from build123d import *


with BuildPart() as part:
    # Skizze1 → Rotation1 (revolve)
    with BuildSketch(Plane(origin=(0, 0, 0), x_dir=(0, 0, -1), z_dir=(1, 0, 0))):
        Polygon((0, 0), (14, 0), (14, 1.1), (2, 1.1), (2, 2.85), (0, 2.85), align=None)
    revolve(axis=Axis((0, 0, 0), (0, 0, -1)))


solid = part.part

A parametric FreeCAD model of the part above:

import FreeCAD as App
import Part
import Sketcher
Q = App.Units.Quantity

doc = App.newDocument("Part")
body = doc.addObject("PartDesign::Body", "Body")

sketch1 = body.newObject("Sketcher::SketchObject", "Sketch")
sketch1.AttachmentSupport = (doc.getObject("YZ_Plane"), [""])
sketch1.MapMode = "FlatFace"
sketch1.addGeometry(Part.LineSegment(App.Vector(0, 0, 0), App.Vector(0, -14, 0)), False)
sketch1.addGeometry(Part.LineSegment(App.Vector(0, -14, 0), App.Vector(1.1, -14, 0)), False)
sketch1.addGeometry(Part.LineSegment(App.Vector(1.1, -14, 0), App.Vector(1.1, -2, 0)), False)
sketch1.addGeometry(Part.LineSegment(App.Vector(1.1, -2, 0), App.Vector(2.85, -2, 0)), False)
sketch1.addGeometry(Part.LineSegment(App.Vector(2.85, -2, 0), App.Vector(2.85, 0, 0)), False)
sketch1.addGeometry(Part.LineSegment(App.Vector(2.85, 0, 0), App.Vector(0, 0, 0)), False)
sketch1.addConstraint(Sketcher.Constraint("Coincident", 0, 2, 1, 1))
sketch1.addConstraint(Sketcher.Constraint("Coincident", 1, 2, 2, 1))
sketch1.addConstraint(Sketcher.Constraint("Coincident", 2, 2, 3, 1))
sketch1.addConstraint(Sketcher.Constraint("Coincident", 3, 2, 4, 1))
sketch1.addConstraint(Sketcher.Constraint("Coincident", 4, 2, 5, 1))
sketch1.addConstraint(Sketcher.Constraint("Coincident", 5, 2, 0, 1))
sketch1.addConstraint(Sketcher.Constraint("Vertical", 0))
sketch1.addConstraint(Sketcher.Constraint("Horizontal", 1))
sketch1.addConstraint(Sketcher.Constraint("Vertical", 2))
sketch1.addConstraint(Sketcher.Constraint("Horizontal", 3))
sketch1.addConstraint(Sketcher.Constraint("Vertical", 4))
sketch1.addConstraint(Sketcher.Constraint("Horizontal", 5))
sketch1.addConstraint(Sketcher.Constraint("Coincident", 5, 2, -1, 1))
sketch1.addConstraint(Sketcher.Constraint("DistanceY", 0, 2, 0, 1, Q("14 mm")))
sketch1.addConstraint(Sketcher.Constraint("DistanceY", 2, 1, 2, 2, Q("12 mm")))
sketch1.addConstraint(Sketcher.Constraint("DistanceX", 1, 1, 1, 2, Q("1.1 mm")))
sketch1.addConstraint(Sketcher.Constraint("DistanceX", 3, 1, 3, 2, Q("1.75 mm")))
revolution = body.newObject("PartDesign::Revolution", "Revolution")
revolution.Profile = sketch1
revolution.ReferenceAxis = (sketch1, ["V_Axis"])
revolution.Angle = 360

doc.recompute()
